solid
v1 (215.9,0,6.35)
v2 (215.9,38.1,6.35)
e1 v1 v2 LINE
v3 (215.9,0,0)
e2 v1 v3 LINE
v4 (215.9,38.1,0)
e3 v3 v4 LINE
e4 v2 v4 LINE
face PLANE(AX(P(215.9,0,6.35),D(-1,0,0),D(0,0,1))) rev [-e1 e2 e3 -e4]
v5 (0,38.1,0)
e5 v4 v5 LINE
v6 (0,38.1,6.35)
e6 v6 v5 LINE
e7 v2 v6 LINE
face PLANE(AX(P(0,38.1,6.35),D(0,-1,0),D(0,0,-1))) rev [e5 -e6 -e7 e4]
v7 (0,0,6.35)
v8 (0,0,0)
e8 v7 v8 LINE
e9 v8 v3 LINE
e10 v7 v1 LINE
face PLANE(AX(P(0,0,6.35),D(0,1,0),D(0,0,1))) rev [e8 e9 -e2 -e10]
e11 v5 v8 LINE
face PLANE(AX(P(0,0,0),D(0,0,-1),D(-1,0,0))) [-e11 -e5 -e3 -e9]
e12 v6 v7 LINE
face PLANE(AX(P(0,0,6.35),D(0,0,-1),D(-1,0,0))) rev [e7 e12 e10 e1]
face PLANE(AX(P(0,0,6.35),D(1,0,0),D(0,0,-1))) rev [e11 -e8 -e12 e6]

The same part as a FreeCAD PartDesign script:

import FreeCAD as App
import Part
import Sketcher
from FreeCAD import Vector
Q = App.Units.Quantity


def add_polygon(sketch, points):
    """Adds a closed chain of lines whose ends are joined by coincident constraints."""
    first, n = sketch.GeometryCount, len(points)
    for a, b in zip(points, points[1:] + points[:1]):
        sketch.addGeometry(Part.LineSegment(App.Vector(*a, 0), App.Vector(*b, 0)), False)
    for i in range(n):
        sketch.addConstraint(Sketcher.Constraint("Coincident", first + i, 2, first + (i + 1) % n, 1))

doc = App.newDocument("Part")
params = doc.addObject("Spreadsheet::Sheet", "Params")
for row, (alias, value) in enumerate([
    ("sketch1_width", "8.5 in"),
    ("sketch1_height", "1.5 in"),
    ("pad1_length", "0.25 in"),
], start=1):
    params.set(f"A{row}", alias)
    params.set(f"B{row}", "=" + value)
    params.setAlias(f"B{row}", alias)

body = doc.addObject("PartDesign::Body", "Body")

# Sketch on XY plane
sketch1 = body.newObject("Sketcher::SketchObject", "Sketch")
sketch1.AttachmentSupport = (doc.getObject("XY_Plane"), [""])
sketch1.MapMode = "FlatFace"
add_polygon(sketch1, [(0, 38), (0, 0), (216, 0), (216, 38)])  # lines 0-3
sketch1.addConstraint([
    Sketcher.Constraint("Vertical", 0),
    Sketcher.Constraint("Horizontal", 1),
    Sketcher.Constraint("Vertical", 2),
    Sketcher.Constraint("Horizontal", 3),
    Sketcher.Constraint("Coincident", 0, 2, -1, 1),
    Sketcher.Constraint("DistanceX", 1, 1, 1, 2, Q("8.5 in")),
    Sketcher.Constraint("DistanceY", 0, 2, 0, 1, Q("1.5 in")),
])
sketch1.setExpression("Constraints[9]", "Params.sketch1_width")
sketch1.setExpression("Constraints[10]", "Params.sketch1_height")
pad1 = body.newObject("PartDesign::Pad", "Pad")
pad1.Profile = sketch1
pad1.setExpression("Length", "Params.pad1_length")

doc.recompute()
